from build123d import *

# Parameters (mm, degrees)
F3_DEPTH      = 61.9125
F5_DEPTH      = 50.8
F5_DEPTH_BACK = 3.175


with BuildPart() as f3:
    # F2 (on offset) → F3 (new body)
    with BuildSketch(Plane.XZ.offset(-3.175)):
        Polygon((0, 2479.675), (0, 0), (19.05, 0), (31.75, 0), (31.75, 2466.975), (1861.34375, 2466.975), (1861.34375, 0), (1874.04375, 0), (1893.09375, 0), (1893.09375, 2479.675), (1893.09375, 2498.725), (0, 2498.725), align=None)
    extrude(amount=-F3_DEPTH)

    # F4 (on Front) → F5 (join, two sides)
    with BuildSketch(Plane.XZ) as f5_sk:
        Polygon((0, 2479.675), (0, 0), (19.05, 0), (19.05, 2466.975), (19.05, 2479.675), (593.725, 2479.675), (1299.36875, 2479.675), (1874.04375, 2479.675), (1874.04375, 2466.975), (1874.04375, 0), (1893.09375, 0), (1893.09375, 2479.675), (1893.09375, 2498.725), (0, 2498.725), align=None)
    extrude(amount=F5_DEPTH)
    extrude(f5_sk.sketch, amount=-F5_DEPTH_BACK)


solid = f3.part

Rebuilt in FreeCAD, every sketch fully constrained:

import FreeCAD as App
import Part
import Sketcher
from FreeCAD import Vector
Q = App.Units.Quantity

doc = App.newDocument("Part")
body = doc.addObject("PartDesign::Body", "Body")

# Sketch on XZ plane
sketch1 = body.newObject("Sketcher::SketchObject", "Sketch")
sketch1.AttachmentSupport = (doc.getObject("XZ_Plane"), [""])
sketch1.MapMode = "FlatFace"
sketch1.AttachmentOffset = App.Placement(Vector(0, 0, -0.125 * 25.4), App.Rotation())
sketch1.addGeometry(Part.LineSegment(Vector(0, 0, 0), Vector(32, 0, 0)), False)
sketch1.addGeometry(Part.LineSegment(Vector(32, 0, 0), Vector(32, 2467, 0)), False)
sketch1.addGeometry(Part.LineSegment(Vector(32, 2467, 0), Vector(1861, 2467, 0)), False)
sketch1.addGeometry(Part.LineSegment(Vector(1861, 2467, 0), Vector(1861, 0, 0)), False)
sketch1.addGeometry(Part.LineSegment(Vector(1861, 0, 0), Vector(1893, 0, 0)), False)
sketch1.addGeometry(Part.LineSegment(Vector(1893, 0, 0), Vector(1893, 2499, 0)), False)
sketch1.addGeometry(Part.LineSegment(Vector(1893, 2499, 0), Vector(0, 2499, 0)), False)
sketch1.addGeometry(Part.LineSegment(Vector(0, 2499, 0), Vector(0, 0, 0)), False)
sketch1.addConstraint(Sketcher.Constraint("Coincident", 0, 2, 1, 1))
sketch1.addConstraint(Sketcher.Constraint("Coincident", 1, 2, 2, 1))
sketch1.addConstraint(Sketcher.Constraint("Coincident", 2, 2, 3, 1))
sketch1.addConstraint(Sketcher.Constraint("Coincident", 3, 2, 4, 1))
sketch1.addConstraint(Sketcher.Constraint("Coincident", 4, 2, 5, 1))
sketch1.addConstraint(Sketcher.Constraint("Coincident", 5, 2, 6, 1))
sketch1.addConstraint(Sketcher.Constraint("Coincident", 6, 2, 7, 1))
sketch1.addConstraint(Sketcher.Constraint("Coincident", 7, 2, 0, 1))
sketch1.addConstraint(Sketcher.Constraint("Horizontal", 0))
sketch1.addConstraint(Sketcher.Constraint("Vertical", 1))
sketch1.addConstraint(Sketcher.Constraint("Horizontal", 2))
sketch1.addConstraint(Sketcher.Constraint("Vertical", 3))
sketch1.addConstraint(Sketcher.Constraint("Horizontal", 4))
sketch1.addConstraint(Sketcher.Constraint("Vertical", 5))
sketch1.addConstraint(Sketcher.Constraint("Horizontal", 6))
sketch1.addConstraint(Sketcher.Constraint("Vertical", 7))
sketch1.addConstraint(Sketcher.Constraint("Coincident", 7, 2, -1, 1))
sketch1.addConstraint(Sketcher.Constraint("PointOnObject", 3, 2, -1))
sketch1.addConstraint(Sketcher.Constraint("Equal", 0, 4))
sketch1.addConstraint(Sketcher.Constraint("DistanceX", 0, 1, 0, 2, Q("1.25 in")))
sketch1.addConstraint(Sketcher.Constraint("DistanceX", 2, 1, 2, 2, Q("72.03125 in")))
sketch1.addConstraint(Sketcher.Constraint("DistanceY", 1, 1, 1, 2, Q("97.125 in")))
sketch1.addConstraint(Sketcher.Constraint("DistanceY", 5, 1, 5, 2, Q("98.375 in")))
pad1 = body.newObject("PartDesign::Pad", "Pad")
pad1.Profile = sketch1
pad1.Length = Q("2.4375 in")
pad1.Reversed = True

# Sketch on XZ plane
sketch2 = body.newObject("Sketcher::SketchObject", "Sketch001")
sketch2.AttachmentSupport = (doc.getObject("XZ_Plane"), [""])
sketch2.MapMode = "FlatFace"
sketch2.addGeometry(Part.LineSegment(Vector(0, 0, 0), Vector(19, 0, 0)), False)
sketch2.addGeometry(Part.LineSegment(Vector(19, 0, 0), Vector(19, 2480, 0)), False)
sketch2.addGeometry(Part.LineSegment(Vector(19, 2480, 0), Vector(1874, 2480, 0)), False)
sketch2.addGeometry(Part.LineSegment(Vector(1874, 2480, 0), Vector(1874, 0, 0)), False)
sketch2.addGeometry(Part.LineSegment(Vector(1874, 0, 0), Vector(1893, 0, 0)), False)
sketch2.addGeometry(Part.LineSegment(Vector(1893, 0, 0), Vector(1893, 2499, 0)), False)
sketch2.addGeometry(Part.LineSegment(Vector(1893, 2499, 0), Vector(0, 2499, 0)), False)
sketch2.addGeometry(Part.LineSegment(Vector(0, 2499, 0), Vector(0, 0, 0)), False)
sketch2.addConstraint(Sketcher.Constraint("Coincident", 0, 2, 1, 1))
sketch2.addConstraint(Sketcher.Constraint("Coincident", 1, 2, 2, 1))
sketch2.addConstraint(Sketcher.Constraint("Coincident", 2, 2, 3, 1))
sketch2.addConstraint(Sketcher.Constraint("Coincident", 3, 2, 4, 1))
sketch2.addConstraint(Sketcher.Constraint("Coincident", 4, 2, 5, 1))
sketch2.addConstraint(Sketcher.Constraint("Coincident", 5, 2, 6, 1))
sketch2.addConstraint(Sketcher.Constraint("Coincident", 6, 2, 7, 1))
sketch2.addConstraint(Sketcher.Constraint("Coincident", 7, 2, 0, 1))
sketch2.addConstraint(Sketcher.Constraint("Horizontal", 0))
sketch2.addConstraint(Sketcher.Constraint("Vertical", 1))
sketch2.addConstraint(Sketcher.Constraint("Horizontal", 2))
sketch2.addConstraint(Sketcher.Constraint("Vertical", 3))
sketch2.addConstraint(Sketcher.Constraint("Horizontal", 4))
sketch2.addConstraint(Sketcher.Constraint("Vertical", 5))
sketch2.addConstraint(Sketcher.Constraint("Horizontal", 6))
sketch2.addConstraint(Sketcher.Constraint("Vertical", 7))
sketch2.addConstraint(Sketcher.Constraint("Coincident", 7, 2, -1, 1))
sketch2.addConstraint(Sketcher.Constraint("PointOnObject", 3, 2, -1))
sketch2.addConstraint(Sketcher.Constraint("Equal", 0, 4))
sketch2.addConstraint(Sketcher.Constraint("DistanceX", 0, 1, 0, 2, Q("0.75 in")))
sketch2.addConstraint(Sketcher.Constraint("DistanceX", 2, 1, 2, 2, Q("73.03125 in")))
sketch2.addConstraint(Sketcher.Constraint("DistanceY", 1, 1, 1, 2, Q("97.625 in")))
sketch2.addConstraint(Sketcher.Constraint("DistanceY", 5, 1, 5, 2, Q("98.375 in")))
pad2 = body.newObject("PartDesign::Pad", "Pad001")
pad2.Profile = sketch2
pad2.Type = "TwoLengths"
pad2.Length = Q("2 in")
pad2.Length2 = Q("0.125 in")

doc.recompute()
